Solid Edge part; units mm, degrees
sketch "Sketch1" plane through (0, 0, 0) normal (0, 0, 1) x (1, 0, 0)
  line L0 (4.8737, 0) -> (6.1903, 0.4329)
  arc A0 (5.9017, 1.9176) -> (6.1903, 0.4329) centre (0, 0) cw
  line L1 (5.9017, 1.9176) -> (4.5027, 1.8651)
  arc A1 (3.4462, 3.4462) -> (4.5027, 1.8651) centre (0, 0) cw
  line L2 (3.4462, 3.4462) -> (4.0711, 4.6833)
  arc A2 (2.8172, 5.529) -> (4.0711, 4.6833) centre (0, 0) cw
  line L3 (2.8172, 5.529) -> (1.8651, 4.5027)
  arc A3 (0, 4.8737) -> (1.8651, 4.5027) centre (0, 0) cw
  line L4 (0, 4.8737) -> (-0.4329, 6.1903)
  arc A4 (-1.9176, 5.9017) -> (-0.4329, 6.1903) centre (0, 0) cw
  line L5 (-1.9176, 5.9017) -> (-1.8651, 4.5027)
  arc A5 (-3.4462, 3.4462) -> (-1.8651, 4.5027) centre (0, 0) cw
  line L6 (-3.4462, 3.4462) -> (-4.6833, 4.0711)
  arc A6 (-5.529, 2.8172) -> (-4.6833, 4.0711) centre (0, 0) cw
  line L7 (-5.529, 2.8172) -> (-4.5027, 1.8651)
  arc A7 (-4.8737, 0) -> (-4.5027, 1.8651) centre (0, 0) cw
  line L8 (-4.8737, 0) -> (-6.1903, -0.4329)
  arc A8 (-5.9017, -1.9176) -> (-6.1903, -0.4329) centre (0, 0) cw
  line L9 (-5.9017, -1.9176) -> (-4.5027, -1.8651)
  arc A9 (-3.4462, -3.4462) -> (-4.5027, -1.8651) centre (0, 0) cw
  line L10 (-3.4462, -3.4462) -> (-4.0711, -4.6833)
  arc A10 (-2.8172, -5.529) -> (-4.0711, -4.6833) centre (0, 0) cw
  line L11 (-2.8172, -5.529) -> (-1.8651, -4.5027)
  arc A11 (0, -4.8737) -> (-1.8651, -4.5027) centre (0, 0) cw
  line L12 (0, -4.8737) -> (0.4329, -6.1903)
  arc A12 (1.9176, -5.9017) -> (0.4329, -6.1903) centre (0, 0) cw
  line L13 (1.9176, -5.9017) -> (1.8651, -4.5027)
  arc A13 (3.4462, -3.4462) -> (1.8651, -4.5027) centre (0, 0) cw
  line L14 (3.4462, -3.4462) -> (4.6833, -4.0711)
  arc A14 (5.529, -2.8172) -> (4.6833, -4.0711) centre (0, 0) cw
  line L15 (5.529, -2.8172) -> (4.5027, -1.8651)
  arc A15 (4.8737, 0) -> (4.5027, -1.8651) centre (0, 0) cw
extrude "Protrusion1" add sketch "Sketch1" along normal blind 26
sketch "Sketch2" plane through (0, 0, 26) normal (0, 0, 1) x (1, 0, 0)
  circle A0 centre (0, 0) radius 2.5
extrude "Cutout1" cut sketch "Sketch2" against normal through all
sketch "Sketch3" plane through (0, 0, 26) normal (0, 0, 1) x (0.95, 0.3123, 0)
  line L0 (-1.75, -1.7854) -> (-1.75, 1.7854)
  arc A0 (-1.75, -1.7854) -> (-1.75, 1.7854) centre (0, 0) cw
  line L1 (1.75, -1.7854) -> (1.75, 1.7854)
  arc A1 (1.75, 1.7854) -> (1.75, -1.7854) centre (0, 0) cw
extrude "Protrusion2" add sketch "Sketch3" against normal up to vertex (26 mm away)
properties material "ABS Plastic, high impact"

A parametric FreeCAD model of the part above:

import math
import FreeCAD as App
import Part
import Sketcher
Q = App.Units.Quantity

doc = App.newDocument("Part")
params = doc.addObject("Spreadsheet::Sheet", "Params")
for row, (alias, value) in enumerate([
    ("sketch1_length", "1.4 mm"),
    ("sketch1_length2", "1.4 mm"),
    ("sketch1_length3", "1.4 mm"),
    ("sketch1_length4", "1.4 mm"),
    ("sketch1_length5", "1.4 mm"),
    ("pad1_length", "26 mm"),
    ("sketch2_diameter", "5 mm"),
    ("sketch3_radius", "2.5 mm"),
    ("pad2_length", "26 mm"),
], start=1):
    params.set(f"A{row}", alias)
    params.set(f"B{row}", "=" + value)
    params.setAlias(f"B{row}", alias)

body = doc.addObject("PartDesign::Body", "Body")

# Sketch on XY plane
sketch1 = body.newObject("Sketcher::SketchObject", "Sketch")
sketch1.AttachmentSupport = (doc.getObject("XY_Plane"), [""])
sketch1.MapMode = "FlatFace"
sketch1.addGeometry([
    Part.ArcOfCircle(Part.Circle(App.Vector(0, 0, 0), App.Vector(0, 0, 1), 4.873663), math.radians(-22.500224), math.radians(0)),  # 0
    Part.LineSegment(App.Vector(4.8737, 0, 0), App.Vector(6.1903, 0.4329, 0)),  # 1
    Part.ArcOfCircle(Part.Circle(App.Vector(0, 0, 0), App.Vector(0, 0, 1), 6.205357), math.radians(4.000295), math.radians(18.000188)),  # 2
    Part.LineSegment(App.Vector(5.9017, 1.9176, 0), App.Vector(4.5027, 1.8651, 0)),  # 3
    Part.ArcOfCircle(Part.Circle(App.Vector(0, 0, 0), App.Vector(0, 0, 1), 4.8737), math.radians(22.500224), math.radians(45)),  # 4
    Part.LineSegment(App.Vector(3.4462, 3.4462, 0), App.Vector(4.0711, 4.6833, 0)),  # 5
    Part.ArcOfCircle(Part.Circle(App.Vector(-0.001918, -0.003255, 0), App.Vector(0, 0, 1), 6.209128), math.radians(49.006566), math.radians(62.997594)),  # 6
    Part.LineSegment(App.Vector(2.8172, 5.529, 0), App.Vector(1.8651, 4.5027, 0)),  # 7
    Part.ArcOfCircle(Part.Circle(App.Vector(0, 0, 0), App.Vector(0, 0, 1), 4.873663), math.radians(67.499776), math.radians(90)),  # 8
    Part.LineSegment(App.Vector(0, 4.8737, 0), App.Vector(-0.4329, 6.1903, 0)),  # 9
    Part.ArcOfCircle(Part.Circle(App.Vector(0, 0, 0), App.Vector(0, 0, 1), 6.205357), math.radians(94.000295), math.radians(108.000188)),  # 10
    Part.LineSegment(App.Vector(-1.9176, 5.9017, 0), App.Vector(-1.8651, 4.5027, 0)),  # 11
    Part.ArcOfCircle(Part.Circle(App.Vector(0, 0, 0), App.Vector(0, 0, 1), 4.8737), math.radians(112.500224), math.radians(135)),  # 12
    Part.LineSegment(App.Vector(-3.4462, 3.4462, 0), App.Vector(-4.6833, 4.0711, 0)),  # 13
    Part.ArcOfCircle(Part.Circle(App.Vector(0.003255, -0.001918, 0), App.Vector(0, 0, 1), 6.209128), math.radians(139.006566), math.radians(152.997594)),  # 14
    Part.LineSegment(App.Vector(-5.529, 2.8172, 0), App.Vector(-4.5027, 1.8651, 0)),  # 15
    Part.ArcOfCircle(Part.Circle(App.Vector(0, 0, 0), App.Vector(0, 0, 1), 4.873663), math.radians(157.499776), math.radians(180)),  # 16
    Part.LineSegment(App.Vector(-4.8737, 0, 0), App.Vector(-6.1903, -0.4329, 0)),  # 17
    Part.ArcOfCircle(Part.Circle(App.Vector(0, 0, 0), App.Vector(0, 0, 1), 6.205357), math.radians(-175.999705), math.radians(-161.999812)),  # 18
    Part.LineSegment(App.Vector(-5.9017, -1.9176, 0), App.Vector(-4.5027, -1.8651, 0)),  # 19
    Part.ArcOfCircle(Part.Circle(App.Vector(0, 0, 0), App.Vector(0, 0, 1), 4.8737), math.radians(-157.499776), math.radians(-135)),  # 20
    Part.LineSegment(App.Vector(-3.4462, -3.4462, 0), App.Vector(-4.0711, -4.6833, 0)),  # 21
    Part.ArcOfCircle(Part.Circle(App.Vector(0.001918, 0.003255, 0), App.Vector(0, 0, 1), 6.209128), math.radians(-130.993434), math.radians(-117.002406)),  # 22
    Part.LineSegment(App.Vector(-2.8172, -5.529, 0), App.Vector(-1.8651, -4.5027, 0)),  # 23
    Part.ArcOfCircle(Part.Circle(App.Vector(0, 0, 0), App.Vector(0, 0, 1), 4.873663), math.radians(-112.500224), math.radians(-90)),  # 24
    Part.LineSegment(App.Vector(0, -4.8737, 0), App.Vector(0.4329, -6.1903, 0)),  # 25
    Part.ArcOfCircle(Part.Circle(App.Vector(0, 0, 0), App.Vector(0, 0, 1), 6.205357), math.radians(-85.999705), math.radians(-71.999812)),  # 26
    Part.LineSegment(App.Vector(1.9176, -5.9017, 0), App.Vector(1.8651, -4.5027, 0)),  # 27
    Part.ArcOfCircle(Part.Circle(App.Vector(0, 0, 0), App.Vector(0, 0, 1), 4.8737), math.radians(-67.499776), math.radians(-45)),  # 28
    Part.LineSegment(App.Vector(3.4462, -3.4462, 0), App.Vector(4.6833, -4.0711, 0)),  # 29
    Part.ArcOfCircle(Part.Circle(App.Vector(-0.003255, 0.001918, 0), App.Vector(0, 0, 1), 6.209128), math.radians(-40.993434), math.radians(-27.002406)),  # 30
    Part.LineSegment(App.Vector(5.529, -2.8172, 0), App.Vector(4.5027, -1.8651, 0)),  # 31
], False)
sketch1.addConstraint([
    Sketcher.Constraint("Coincident", 0, 2, 1, 1),
    Sketcher.Constraint("Coincident", 1, 2, 2, 1),
    Sketcher.Constraint("Coincident", 2, 2, 3, 1),
    Sketcher.Constraint("Coincident", 3, 2, 4, 1),
    Sketcher.Constraint("Coincident", 4, 2, 5, 1),
    Sketcher.Constraint("Coincident", 5, 2, 6, 1),
    Sketcher.Constraint("Coincident", 6, 2, 7, 1),
    Sketcher.Constraint("Coincident", 7, 2, 8, 1),
    Sketcher.Constraint("Coincident", 8, 2, 9, 1),
    Sketcher.Constraint("Coincident", 9, 2, 10, 1),
    Sketcher.Constraint("Coincident", 10, 2, 11, 1),
    Sketcher.Constraint("Coincident", 11, 2, 12, 1),
    Sketcher.Constraint("Coincident", 12, 2, 13, 1),
    Sketcher.Constraint("Coincident", 13, 2, 14, 1),
    Sketcher.Constraint("Coincident", 14, 2, 15, 1),
    Sketcher.Constraint("Coincident", 15, 2, 16, 1),
    Sketcher.Constraint("Coincident", 16, 2, 17, 1),
    Sketcher.Constraint("Coincident", 17, 2, 18, 1),
    Sketcher.Constraint("Coincident", 18, 2, 19, 1),
    Sketcher.Constraint("Coincident", 19, 2, 20, 1),
    Sketcher.Constraint("Coincident", 20, 2, 21, 1),
    Sketcher.Constraint("Coincident", 21, 2, 22, 1),
    Sketcher.Constraint("Coincident", 22, 2, 23, 1),
    Sketcher.Constraint("Coincident", 23, 2, 24, 1),
    Sketcher.Constraint("Coincident", 24, 2, 25, 1),
    Sketcher.Constraint("Coincident", 25, 2, 26, 1),
    Sketcher.Constraint("Coincident", 26, 2, 27, 1),
    Sketcher.Constraint("Coincident", 27, 2, 28, 1),
    Sketcher.Constraint("Coincident", 28, 2, 29, 1),
    Sketcher.Constraint("Coincident", 29, 2, 30, 1),
    Sketcher.Constraint("Coincident", 30, 2, 31, 1),
    Sketcher.Constraint("Coincident", 31, 2, 0, 1),
    Sketcher.Constraint("Coincident", 0, 3, -1, 1),
    Sketcher.Constraint("Coincident", 2, 3, -1, 1),
    Sketcher.Constraint("Coincident", 4, 3, -1, 1),
    Sketcher.Constraint("Coincident", 8, 3, -1, 1),
    Sketcher.Constraint("Coincident", 10, 3, -1, 1),
    Sketcher.Constraint("Coincident", 12, 3, -1, 1),
    Sketcher.Constraint("Coincident", 16, 3, -1, 1),
    Sketcher.Constraint("Coincident", 18, 3, -1, 1),
    Sketcher.Constraint("Coincident", 20, 3, -1, 1),
    Sketcher.Constraint("Coincident", 24, 3, -1, 1),
    Sketcher.Constraint("Coincident", 26, 3, -1, 1),
    Sketcher.Constraint("Coincident", 28, 3, -1, 1),
    Sketcher.Constraint("PointOnObject", 0, 2, -1),
    Sketcher.Constraint("PointOnObject", 8, 2, -2),
    Sketcher.Constraint("PointOnObject", 16, 2, -1),
    Sketcher.Constraint("PointOnObject", 24, 2, -2),
    Sketcher.Constraint("Distance", 3, Q("1.4 mm")),
    Sketcher.Constraint("Distance", 7, Q("1.4 mm")),
    Sketcher.Constraint("Distance", 11, Q("1.4 mm")),
    Sketcher.Constraint("Distance", 15, Q("1.4 mm")),
    Sketcher.Constraint("Distance", 19, Q("1.4 mm")),
    Sketcher.Constraint("Distance", 23, Q("1.4 mm")),
    Sketcher.Constraint("Distance", 27, Q("1.4 mm")),
    Sketcher.Constraint("Distance", 31, Q("1.4 mm")),
    Sketcher.Constraint("Radius", 0, Q("4.8737 mm")),
    Sketcher.Constraint("Radius", 2, Q("6.2054 mm")),
    Sketcher.Constraint("Radius", 4, Q("4.8737 mm")),
    Sketcher.Constraint("Radius", 6, Q("6.2091 mm")),
    Sketcher.Constraint("Radius", 8, Q("4.8737 mm")),
    Sketcher.Constraint("Radius", 10, Q("6.2054 mm")),
    Sketcher.Constraint("Radius", 12, Q("4.8737 mm")),
    Sketcher.Constraint("Radius", 14, Q("6.2091 mm")),
    Sketcher.Constraint("Radius", 16, Q("4.8737 mm")),
    Sketcher.Constraint("Radius", 18, Q("6.2054 mm")),
    Sketcher.Constraint("Radius", 20, Q("4.8737 mm")),
    Sketcher.Constraint("Radius", 22, Q("6.2091 mm")),
    Sketcher.Constraint("Radius", 24, Q("4.8737 mm")),
    Sketcher.Constraint("Radius", 26, Q("6.2054 mm")),
    Sketcher.Constraint("Radius", 28, Q("4.8737 mm")),
    Sketcher.Constraint("Radius", 30, Q("6.2091 mm")),
    Sketcher.Constraint("DistanceX", 9, 2, 6, 2, Q("3.25 mm")),
    Sketcher.Constraint("DistanceY", 17, 2, 14, 2, Q("3.25 mm")),
    Sketcher.Constraint("DistanceX", 22, 2, 25, 2, Q("3.25 mm")),
    Sketcher.Constraint("DistanceY", 30, 2, 1, 2, Q("3.25 mm")),
    Sketcher.Constraint("Distance", 1, Q("1.386 mm")),
    Sketcher.Constraint("Distance", 5, Q("1.386 mm")),
    Sketcher.Constraint("Distance", 9, Q("1.386 mm")),
    Sketcher.Constraint("Distance", 13, Q("1.386 mm")),
    Sketcher.Constraint("Distance", 17, Q("1.386 mm")),
    Sketcher.Constraint("Distance", 21, Q("1.386 mm")),
    Sketcher.Constraint("Distance", 25, Q("1.386 mm")),
    Sketcher.Constraint("Distance", 29, Q("1.386 mm")),
    Sketcher.Constraint("DistanceX", 6, 3, -1, 1, Q("0.002 mm")),
    Sketcher.Constraint("DistanceY", 14, 3, -1, 1, Q("0.002 mm")),
    Sketcher.Constraint("DistanceX", -1, 1, 22, 3, Q("0.002 mm")),
    Sketcher.Constraint("DistanceY", -1, 1, 30, 3, Q("0.002 mm")),
    Sketcher.Constraint("DistanceY", -1, 1, 3, 2, Q("1.865 mm")),
    Sketcher.Constraint("DistanceX", -1, 1, 5, 2, Q("4.071 mm")),
    Sketcher.Constraint("DistanceY", -1, 1, 6, 2, Q("5.529 mm")),
    Sketcher.Constraint("DistanceX", 11, 2, -1, 1, Q("1.865 mm")),
    Sketcher.Constraint("DistanceY", -1, 1, 13, 2, Q("4.071 mm")),
    Sketcher.Constraint("DistanceX", 14, 2, -1, 1, Q("5.529 mm")),
    Sketcher.Constraint("DistanceY", 19, 2, -1, 1, Q("1.865 mm")),
    Sketcher.Constraint("DistanceX", 21, 2, -1, 1, Q("4.071 mm")),
    Sketcher.Constraint("DistanceY", 22, 2, -1, 1, Q("5.529 mm")),
    Sketcher.Constraint("DistanceX", -1, 1, 27, 2, Q("1.865 mm")),
    Sketcher.Constraint("DistanceY", 29, 2, -1, 1, Q("4.071 mm")),
    Sketcher.Constraint("DistanceX", -1, 1, 30, 2, Q("5.529 mm")),
])
sketch1.setExpression("Constraints[48]", "Params.sketch1_length")
sketch1.setExpression("Constraints[49]", "Params.sketch1_length2")
sketch1.setExpression("Constraints[50]", "Params.sketch1_length3")
sketch1.setExpression("Constraints[51]", "Params.sketch1_length4")
sketch1.setExpression("Constraints[52]", "Params.sketch1_length5")
pad1 = body.newObject("PartDesign::Pad", "Pad")
pad1.Profile = sketch1
pad1.setExpression("Length", "Params.pad1_length")

# Sketch on XY plane
sketch2 = body.newObject("Sketcher::SketchObject", "Sketch001")
sketch2.AttachmentSupport = (doc.getObject("XY_Plane"), [""])
sketch2.MapMode = "FlatFace"
sketch2.AttachmentOffset = App.Placement(App.Vector(0, 0, 26), App.Rotation())
sketch2.addGeometry(Part.Circle(App.Vector(0, 0, 0), App.Vector(0, 0, 1), 2.5), False)
sketch2.addConstraint([
    Sketcher.Constraint("Coincident", 0, 3, -1, 1),
    Sketcher.Constraint("Diameter", 0, Q("5 mm")),
])
sketch2.setExpression("Constraints[1]", "Params.sketch2_diameter")
pocket1 = body.newObject("PartDesign::Pocket", "Pocket")
pocket1.Profile = sketch2
pocket1.Type = "ThroughAll"

# Sketch on XY plane
sketch3 = body.newObject("Sketcher::SketchObject", "Sketch002")
sketch3.AttachmentSupport = (doc.getObject("XY_Plane"), [""])
sketch3.MapMode = "FlatFace"
sketch3.AttachmentOffset = App.Placement(App.Vector(0, 0, 26), App.Rotation())
sketch3.addGeometry([
    Part.ArcOfCircle(Part.Circle(App.Vector(0, 0, 0), App.Vector(0, 0, 1), 2.5), math.radians(153), math.radians(244)),
    Part.LineSegment(App.Vector(-1.1, -2.2, 0), App.Vector(-2.2, 1.1, 0)),
    Part.LineSegment(App.Vector(1.1, 2.2, 0), App.Vector(2.2, -1.1, 0)),
    Part.ArcOfCircle(Part.Circle(App.Vector(0, 0, 0), App.Vector(0, 0, 1), 2.5), math.radians(-27), math.radians(64)),
], False)
sketch3.addConstraint([
    Sketcher.Constraint("Coincident", 0, 1, 1, 2),
    Sketcher.Constraint("Coincident", 1, 1, 0, 2),
    Sketcher.Constraint("Coincident", 2, 1, 3, 2),
    Sketcher.Constraint("Coincident", 3, 1, 2, 2),
    Sketcher.Constraint("Coincident", 0, 3, -1, 1),
    Sketcher.Constraint("Coincident", 3, 3, -1, 1),
    Sketcher.Constraint("Equal", 0, 3),
    Sketcher.Constraint("Parallel", 1, 2),
    Sketcher.Constraint("Equal", 1, 2),
    Sketcher.Constraint("Radius", 0, Q("2.5 mm")),
    Sketcher.Constraint("DistanceX", 0, 1, -1, 1, Q("2.22 mm")),
    Sketcher.Constraint("DistanceX", 1, 1, -1, 1, Q("1.105 mm")),
])
sketch3.setExpression("Constraints[9]", "Params.sketch3_radius")
pad2 = body.newObject("PartDesign::Pad", "Pad001")
pad2.Profile = sketch3
pad2.setExpression("Length", "Params.pad2_length")
pad2.Reversed = True

doc.recompute()
